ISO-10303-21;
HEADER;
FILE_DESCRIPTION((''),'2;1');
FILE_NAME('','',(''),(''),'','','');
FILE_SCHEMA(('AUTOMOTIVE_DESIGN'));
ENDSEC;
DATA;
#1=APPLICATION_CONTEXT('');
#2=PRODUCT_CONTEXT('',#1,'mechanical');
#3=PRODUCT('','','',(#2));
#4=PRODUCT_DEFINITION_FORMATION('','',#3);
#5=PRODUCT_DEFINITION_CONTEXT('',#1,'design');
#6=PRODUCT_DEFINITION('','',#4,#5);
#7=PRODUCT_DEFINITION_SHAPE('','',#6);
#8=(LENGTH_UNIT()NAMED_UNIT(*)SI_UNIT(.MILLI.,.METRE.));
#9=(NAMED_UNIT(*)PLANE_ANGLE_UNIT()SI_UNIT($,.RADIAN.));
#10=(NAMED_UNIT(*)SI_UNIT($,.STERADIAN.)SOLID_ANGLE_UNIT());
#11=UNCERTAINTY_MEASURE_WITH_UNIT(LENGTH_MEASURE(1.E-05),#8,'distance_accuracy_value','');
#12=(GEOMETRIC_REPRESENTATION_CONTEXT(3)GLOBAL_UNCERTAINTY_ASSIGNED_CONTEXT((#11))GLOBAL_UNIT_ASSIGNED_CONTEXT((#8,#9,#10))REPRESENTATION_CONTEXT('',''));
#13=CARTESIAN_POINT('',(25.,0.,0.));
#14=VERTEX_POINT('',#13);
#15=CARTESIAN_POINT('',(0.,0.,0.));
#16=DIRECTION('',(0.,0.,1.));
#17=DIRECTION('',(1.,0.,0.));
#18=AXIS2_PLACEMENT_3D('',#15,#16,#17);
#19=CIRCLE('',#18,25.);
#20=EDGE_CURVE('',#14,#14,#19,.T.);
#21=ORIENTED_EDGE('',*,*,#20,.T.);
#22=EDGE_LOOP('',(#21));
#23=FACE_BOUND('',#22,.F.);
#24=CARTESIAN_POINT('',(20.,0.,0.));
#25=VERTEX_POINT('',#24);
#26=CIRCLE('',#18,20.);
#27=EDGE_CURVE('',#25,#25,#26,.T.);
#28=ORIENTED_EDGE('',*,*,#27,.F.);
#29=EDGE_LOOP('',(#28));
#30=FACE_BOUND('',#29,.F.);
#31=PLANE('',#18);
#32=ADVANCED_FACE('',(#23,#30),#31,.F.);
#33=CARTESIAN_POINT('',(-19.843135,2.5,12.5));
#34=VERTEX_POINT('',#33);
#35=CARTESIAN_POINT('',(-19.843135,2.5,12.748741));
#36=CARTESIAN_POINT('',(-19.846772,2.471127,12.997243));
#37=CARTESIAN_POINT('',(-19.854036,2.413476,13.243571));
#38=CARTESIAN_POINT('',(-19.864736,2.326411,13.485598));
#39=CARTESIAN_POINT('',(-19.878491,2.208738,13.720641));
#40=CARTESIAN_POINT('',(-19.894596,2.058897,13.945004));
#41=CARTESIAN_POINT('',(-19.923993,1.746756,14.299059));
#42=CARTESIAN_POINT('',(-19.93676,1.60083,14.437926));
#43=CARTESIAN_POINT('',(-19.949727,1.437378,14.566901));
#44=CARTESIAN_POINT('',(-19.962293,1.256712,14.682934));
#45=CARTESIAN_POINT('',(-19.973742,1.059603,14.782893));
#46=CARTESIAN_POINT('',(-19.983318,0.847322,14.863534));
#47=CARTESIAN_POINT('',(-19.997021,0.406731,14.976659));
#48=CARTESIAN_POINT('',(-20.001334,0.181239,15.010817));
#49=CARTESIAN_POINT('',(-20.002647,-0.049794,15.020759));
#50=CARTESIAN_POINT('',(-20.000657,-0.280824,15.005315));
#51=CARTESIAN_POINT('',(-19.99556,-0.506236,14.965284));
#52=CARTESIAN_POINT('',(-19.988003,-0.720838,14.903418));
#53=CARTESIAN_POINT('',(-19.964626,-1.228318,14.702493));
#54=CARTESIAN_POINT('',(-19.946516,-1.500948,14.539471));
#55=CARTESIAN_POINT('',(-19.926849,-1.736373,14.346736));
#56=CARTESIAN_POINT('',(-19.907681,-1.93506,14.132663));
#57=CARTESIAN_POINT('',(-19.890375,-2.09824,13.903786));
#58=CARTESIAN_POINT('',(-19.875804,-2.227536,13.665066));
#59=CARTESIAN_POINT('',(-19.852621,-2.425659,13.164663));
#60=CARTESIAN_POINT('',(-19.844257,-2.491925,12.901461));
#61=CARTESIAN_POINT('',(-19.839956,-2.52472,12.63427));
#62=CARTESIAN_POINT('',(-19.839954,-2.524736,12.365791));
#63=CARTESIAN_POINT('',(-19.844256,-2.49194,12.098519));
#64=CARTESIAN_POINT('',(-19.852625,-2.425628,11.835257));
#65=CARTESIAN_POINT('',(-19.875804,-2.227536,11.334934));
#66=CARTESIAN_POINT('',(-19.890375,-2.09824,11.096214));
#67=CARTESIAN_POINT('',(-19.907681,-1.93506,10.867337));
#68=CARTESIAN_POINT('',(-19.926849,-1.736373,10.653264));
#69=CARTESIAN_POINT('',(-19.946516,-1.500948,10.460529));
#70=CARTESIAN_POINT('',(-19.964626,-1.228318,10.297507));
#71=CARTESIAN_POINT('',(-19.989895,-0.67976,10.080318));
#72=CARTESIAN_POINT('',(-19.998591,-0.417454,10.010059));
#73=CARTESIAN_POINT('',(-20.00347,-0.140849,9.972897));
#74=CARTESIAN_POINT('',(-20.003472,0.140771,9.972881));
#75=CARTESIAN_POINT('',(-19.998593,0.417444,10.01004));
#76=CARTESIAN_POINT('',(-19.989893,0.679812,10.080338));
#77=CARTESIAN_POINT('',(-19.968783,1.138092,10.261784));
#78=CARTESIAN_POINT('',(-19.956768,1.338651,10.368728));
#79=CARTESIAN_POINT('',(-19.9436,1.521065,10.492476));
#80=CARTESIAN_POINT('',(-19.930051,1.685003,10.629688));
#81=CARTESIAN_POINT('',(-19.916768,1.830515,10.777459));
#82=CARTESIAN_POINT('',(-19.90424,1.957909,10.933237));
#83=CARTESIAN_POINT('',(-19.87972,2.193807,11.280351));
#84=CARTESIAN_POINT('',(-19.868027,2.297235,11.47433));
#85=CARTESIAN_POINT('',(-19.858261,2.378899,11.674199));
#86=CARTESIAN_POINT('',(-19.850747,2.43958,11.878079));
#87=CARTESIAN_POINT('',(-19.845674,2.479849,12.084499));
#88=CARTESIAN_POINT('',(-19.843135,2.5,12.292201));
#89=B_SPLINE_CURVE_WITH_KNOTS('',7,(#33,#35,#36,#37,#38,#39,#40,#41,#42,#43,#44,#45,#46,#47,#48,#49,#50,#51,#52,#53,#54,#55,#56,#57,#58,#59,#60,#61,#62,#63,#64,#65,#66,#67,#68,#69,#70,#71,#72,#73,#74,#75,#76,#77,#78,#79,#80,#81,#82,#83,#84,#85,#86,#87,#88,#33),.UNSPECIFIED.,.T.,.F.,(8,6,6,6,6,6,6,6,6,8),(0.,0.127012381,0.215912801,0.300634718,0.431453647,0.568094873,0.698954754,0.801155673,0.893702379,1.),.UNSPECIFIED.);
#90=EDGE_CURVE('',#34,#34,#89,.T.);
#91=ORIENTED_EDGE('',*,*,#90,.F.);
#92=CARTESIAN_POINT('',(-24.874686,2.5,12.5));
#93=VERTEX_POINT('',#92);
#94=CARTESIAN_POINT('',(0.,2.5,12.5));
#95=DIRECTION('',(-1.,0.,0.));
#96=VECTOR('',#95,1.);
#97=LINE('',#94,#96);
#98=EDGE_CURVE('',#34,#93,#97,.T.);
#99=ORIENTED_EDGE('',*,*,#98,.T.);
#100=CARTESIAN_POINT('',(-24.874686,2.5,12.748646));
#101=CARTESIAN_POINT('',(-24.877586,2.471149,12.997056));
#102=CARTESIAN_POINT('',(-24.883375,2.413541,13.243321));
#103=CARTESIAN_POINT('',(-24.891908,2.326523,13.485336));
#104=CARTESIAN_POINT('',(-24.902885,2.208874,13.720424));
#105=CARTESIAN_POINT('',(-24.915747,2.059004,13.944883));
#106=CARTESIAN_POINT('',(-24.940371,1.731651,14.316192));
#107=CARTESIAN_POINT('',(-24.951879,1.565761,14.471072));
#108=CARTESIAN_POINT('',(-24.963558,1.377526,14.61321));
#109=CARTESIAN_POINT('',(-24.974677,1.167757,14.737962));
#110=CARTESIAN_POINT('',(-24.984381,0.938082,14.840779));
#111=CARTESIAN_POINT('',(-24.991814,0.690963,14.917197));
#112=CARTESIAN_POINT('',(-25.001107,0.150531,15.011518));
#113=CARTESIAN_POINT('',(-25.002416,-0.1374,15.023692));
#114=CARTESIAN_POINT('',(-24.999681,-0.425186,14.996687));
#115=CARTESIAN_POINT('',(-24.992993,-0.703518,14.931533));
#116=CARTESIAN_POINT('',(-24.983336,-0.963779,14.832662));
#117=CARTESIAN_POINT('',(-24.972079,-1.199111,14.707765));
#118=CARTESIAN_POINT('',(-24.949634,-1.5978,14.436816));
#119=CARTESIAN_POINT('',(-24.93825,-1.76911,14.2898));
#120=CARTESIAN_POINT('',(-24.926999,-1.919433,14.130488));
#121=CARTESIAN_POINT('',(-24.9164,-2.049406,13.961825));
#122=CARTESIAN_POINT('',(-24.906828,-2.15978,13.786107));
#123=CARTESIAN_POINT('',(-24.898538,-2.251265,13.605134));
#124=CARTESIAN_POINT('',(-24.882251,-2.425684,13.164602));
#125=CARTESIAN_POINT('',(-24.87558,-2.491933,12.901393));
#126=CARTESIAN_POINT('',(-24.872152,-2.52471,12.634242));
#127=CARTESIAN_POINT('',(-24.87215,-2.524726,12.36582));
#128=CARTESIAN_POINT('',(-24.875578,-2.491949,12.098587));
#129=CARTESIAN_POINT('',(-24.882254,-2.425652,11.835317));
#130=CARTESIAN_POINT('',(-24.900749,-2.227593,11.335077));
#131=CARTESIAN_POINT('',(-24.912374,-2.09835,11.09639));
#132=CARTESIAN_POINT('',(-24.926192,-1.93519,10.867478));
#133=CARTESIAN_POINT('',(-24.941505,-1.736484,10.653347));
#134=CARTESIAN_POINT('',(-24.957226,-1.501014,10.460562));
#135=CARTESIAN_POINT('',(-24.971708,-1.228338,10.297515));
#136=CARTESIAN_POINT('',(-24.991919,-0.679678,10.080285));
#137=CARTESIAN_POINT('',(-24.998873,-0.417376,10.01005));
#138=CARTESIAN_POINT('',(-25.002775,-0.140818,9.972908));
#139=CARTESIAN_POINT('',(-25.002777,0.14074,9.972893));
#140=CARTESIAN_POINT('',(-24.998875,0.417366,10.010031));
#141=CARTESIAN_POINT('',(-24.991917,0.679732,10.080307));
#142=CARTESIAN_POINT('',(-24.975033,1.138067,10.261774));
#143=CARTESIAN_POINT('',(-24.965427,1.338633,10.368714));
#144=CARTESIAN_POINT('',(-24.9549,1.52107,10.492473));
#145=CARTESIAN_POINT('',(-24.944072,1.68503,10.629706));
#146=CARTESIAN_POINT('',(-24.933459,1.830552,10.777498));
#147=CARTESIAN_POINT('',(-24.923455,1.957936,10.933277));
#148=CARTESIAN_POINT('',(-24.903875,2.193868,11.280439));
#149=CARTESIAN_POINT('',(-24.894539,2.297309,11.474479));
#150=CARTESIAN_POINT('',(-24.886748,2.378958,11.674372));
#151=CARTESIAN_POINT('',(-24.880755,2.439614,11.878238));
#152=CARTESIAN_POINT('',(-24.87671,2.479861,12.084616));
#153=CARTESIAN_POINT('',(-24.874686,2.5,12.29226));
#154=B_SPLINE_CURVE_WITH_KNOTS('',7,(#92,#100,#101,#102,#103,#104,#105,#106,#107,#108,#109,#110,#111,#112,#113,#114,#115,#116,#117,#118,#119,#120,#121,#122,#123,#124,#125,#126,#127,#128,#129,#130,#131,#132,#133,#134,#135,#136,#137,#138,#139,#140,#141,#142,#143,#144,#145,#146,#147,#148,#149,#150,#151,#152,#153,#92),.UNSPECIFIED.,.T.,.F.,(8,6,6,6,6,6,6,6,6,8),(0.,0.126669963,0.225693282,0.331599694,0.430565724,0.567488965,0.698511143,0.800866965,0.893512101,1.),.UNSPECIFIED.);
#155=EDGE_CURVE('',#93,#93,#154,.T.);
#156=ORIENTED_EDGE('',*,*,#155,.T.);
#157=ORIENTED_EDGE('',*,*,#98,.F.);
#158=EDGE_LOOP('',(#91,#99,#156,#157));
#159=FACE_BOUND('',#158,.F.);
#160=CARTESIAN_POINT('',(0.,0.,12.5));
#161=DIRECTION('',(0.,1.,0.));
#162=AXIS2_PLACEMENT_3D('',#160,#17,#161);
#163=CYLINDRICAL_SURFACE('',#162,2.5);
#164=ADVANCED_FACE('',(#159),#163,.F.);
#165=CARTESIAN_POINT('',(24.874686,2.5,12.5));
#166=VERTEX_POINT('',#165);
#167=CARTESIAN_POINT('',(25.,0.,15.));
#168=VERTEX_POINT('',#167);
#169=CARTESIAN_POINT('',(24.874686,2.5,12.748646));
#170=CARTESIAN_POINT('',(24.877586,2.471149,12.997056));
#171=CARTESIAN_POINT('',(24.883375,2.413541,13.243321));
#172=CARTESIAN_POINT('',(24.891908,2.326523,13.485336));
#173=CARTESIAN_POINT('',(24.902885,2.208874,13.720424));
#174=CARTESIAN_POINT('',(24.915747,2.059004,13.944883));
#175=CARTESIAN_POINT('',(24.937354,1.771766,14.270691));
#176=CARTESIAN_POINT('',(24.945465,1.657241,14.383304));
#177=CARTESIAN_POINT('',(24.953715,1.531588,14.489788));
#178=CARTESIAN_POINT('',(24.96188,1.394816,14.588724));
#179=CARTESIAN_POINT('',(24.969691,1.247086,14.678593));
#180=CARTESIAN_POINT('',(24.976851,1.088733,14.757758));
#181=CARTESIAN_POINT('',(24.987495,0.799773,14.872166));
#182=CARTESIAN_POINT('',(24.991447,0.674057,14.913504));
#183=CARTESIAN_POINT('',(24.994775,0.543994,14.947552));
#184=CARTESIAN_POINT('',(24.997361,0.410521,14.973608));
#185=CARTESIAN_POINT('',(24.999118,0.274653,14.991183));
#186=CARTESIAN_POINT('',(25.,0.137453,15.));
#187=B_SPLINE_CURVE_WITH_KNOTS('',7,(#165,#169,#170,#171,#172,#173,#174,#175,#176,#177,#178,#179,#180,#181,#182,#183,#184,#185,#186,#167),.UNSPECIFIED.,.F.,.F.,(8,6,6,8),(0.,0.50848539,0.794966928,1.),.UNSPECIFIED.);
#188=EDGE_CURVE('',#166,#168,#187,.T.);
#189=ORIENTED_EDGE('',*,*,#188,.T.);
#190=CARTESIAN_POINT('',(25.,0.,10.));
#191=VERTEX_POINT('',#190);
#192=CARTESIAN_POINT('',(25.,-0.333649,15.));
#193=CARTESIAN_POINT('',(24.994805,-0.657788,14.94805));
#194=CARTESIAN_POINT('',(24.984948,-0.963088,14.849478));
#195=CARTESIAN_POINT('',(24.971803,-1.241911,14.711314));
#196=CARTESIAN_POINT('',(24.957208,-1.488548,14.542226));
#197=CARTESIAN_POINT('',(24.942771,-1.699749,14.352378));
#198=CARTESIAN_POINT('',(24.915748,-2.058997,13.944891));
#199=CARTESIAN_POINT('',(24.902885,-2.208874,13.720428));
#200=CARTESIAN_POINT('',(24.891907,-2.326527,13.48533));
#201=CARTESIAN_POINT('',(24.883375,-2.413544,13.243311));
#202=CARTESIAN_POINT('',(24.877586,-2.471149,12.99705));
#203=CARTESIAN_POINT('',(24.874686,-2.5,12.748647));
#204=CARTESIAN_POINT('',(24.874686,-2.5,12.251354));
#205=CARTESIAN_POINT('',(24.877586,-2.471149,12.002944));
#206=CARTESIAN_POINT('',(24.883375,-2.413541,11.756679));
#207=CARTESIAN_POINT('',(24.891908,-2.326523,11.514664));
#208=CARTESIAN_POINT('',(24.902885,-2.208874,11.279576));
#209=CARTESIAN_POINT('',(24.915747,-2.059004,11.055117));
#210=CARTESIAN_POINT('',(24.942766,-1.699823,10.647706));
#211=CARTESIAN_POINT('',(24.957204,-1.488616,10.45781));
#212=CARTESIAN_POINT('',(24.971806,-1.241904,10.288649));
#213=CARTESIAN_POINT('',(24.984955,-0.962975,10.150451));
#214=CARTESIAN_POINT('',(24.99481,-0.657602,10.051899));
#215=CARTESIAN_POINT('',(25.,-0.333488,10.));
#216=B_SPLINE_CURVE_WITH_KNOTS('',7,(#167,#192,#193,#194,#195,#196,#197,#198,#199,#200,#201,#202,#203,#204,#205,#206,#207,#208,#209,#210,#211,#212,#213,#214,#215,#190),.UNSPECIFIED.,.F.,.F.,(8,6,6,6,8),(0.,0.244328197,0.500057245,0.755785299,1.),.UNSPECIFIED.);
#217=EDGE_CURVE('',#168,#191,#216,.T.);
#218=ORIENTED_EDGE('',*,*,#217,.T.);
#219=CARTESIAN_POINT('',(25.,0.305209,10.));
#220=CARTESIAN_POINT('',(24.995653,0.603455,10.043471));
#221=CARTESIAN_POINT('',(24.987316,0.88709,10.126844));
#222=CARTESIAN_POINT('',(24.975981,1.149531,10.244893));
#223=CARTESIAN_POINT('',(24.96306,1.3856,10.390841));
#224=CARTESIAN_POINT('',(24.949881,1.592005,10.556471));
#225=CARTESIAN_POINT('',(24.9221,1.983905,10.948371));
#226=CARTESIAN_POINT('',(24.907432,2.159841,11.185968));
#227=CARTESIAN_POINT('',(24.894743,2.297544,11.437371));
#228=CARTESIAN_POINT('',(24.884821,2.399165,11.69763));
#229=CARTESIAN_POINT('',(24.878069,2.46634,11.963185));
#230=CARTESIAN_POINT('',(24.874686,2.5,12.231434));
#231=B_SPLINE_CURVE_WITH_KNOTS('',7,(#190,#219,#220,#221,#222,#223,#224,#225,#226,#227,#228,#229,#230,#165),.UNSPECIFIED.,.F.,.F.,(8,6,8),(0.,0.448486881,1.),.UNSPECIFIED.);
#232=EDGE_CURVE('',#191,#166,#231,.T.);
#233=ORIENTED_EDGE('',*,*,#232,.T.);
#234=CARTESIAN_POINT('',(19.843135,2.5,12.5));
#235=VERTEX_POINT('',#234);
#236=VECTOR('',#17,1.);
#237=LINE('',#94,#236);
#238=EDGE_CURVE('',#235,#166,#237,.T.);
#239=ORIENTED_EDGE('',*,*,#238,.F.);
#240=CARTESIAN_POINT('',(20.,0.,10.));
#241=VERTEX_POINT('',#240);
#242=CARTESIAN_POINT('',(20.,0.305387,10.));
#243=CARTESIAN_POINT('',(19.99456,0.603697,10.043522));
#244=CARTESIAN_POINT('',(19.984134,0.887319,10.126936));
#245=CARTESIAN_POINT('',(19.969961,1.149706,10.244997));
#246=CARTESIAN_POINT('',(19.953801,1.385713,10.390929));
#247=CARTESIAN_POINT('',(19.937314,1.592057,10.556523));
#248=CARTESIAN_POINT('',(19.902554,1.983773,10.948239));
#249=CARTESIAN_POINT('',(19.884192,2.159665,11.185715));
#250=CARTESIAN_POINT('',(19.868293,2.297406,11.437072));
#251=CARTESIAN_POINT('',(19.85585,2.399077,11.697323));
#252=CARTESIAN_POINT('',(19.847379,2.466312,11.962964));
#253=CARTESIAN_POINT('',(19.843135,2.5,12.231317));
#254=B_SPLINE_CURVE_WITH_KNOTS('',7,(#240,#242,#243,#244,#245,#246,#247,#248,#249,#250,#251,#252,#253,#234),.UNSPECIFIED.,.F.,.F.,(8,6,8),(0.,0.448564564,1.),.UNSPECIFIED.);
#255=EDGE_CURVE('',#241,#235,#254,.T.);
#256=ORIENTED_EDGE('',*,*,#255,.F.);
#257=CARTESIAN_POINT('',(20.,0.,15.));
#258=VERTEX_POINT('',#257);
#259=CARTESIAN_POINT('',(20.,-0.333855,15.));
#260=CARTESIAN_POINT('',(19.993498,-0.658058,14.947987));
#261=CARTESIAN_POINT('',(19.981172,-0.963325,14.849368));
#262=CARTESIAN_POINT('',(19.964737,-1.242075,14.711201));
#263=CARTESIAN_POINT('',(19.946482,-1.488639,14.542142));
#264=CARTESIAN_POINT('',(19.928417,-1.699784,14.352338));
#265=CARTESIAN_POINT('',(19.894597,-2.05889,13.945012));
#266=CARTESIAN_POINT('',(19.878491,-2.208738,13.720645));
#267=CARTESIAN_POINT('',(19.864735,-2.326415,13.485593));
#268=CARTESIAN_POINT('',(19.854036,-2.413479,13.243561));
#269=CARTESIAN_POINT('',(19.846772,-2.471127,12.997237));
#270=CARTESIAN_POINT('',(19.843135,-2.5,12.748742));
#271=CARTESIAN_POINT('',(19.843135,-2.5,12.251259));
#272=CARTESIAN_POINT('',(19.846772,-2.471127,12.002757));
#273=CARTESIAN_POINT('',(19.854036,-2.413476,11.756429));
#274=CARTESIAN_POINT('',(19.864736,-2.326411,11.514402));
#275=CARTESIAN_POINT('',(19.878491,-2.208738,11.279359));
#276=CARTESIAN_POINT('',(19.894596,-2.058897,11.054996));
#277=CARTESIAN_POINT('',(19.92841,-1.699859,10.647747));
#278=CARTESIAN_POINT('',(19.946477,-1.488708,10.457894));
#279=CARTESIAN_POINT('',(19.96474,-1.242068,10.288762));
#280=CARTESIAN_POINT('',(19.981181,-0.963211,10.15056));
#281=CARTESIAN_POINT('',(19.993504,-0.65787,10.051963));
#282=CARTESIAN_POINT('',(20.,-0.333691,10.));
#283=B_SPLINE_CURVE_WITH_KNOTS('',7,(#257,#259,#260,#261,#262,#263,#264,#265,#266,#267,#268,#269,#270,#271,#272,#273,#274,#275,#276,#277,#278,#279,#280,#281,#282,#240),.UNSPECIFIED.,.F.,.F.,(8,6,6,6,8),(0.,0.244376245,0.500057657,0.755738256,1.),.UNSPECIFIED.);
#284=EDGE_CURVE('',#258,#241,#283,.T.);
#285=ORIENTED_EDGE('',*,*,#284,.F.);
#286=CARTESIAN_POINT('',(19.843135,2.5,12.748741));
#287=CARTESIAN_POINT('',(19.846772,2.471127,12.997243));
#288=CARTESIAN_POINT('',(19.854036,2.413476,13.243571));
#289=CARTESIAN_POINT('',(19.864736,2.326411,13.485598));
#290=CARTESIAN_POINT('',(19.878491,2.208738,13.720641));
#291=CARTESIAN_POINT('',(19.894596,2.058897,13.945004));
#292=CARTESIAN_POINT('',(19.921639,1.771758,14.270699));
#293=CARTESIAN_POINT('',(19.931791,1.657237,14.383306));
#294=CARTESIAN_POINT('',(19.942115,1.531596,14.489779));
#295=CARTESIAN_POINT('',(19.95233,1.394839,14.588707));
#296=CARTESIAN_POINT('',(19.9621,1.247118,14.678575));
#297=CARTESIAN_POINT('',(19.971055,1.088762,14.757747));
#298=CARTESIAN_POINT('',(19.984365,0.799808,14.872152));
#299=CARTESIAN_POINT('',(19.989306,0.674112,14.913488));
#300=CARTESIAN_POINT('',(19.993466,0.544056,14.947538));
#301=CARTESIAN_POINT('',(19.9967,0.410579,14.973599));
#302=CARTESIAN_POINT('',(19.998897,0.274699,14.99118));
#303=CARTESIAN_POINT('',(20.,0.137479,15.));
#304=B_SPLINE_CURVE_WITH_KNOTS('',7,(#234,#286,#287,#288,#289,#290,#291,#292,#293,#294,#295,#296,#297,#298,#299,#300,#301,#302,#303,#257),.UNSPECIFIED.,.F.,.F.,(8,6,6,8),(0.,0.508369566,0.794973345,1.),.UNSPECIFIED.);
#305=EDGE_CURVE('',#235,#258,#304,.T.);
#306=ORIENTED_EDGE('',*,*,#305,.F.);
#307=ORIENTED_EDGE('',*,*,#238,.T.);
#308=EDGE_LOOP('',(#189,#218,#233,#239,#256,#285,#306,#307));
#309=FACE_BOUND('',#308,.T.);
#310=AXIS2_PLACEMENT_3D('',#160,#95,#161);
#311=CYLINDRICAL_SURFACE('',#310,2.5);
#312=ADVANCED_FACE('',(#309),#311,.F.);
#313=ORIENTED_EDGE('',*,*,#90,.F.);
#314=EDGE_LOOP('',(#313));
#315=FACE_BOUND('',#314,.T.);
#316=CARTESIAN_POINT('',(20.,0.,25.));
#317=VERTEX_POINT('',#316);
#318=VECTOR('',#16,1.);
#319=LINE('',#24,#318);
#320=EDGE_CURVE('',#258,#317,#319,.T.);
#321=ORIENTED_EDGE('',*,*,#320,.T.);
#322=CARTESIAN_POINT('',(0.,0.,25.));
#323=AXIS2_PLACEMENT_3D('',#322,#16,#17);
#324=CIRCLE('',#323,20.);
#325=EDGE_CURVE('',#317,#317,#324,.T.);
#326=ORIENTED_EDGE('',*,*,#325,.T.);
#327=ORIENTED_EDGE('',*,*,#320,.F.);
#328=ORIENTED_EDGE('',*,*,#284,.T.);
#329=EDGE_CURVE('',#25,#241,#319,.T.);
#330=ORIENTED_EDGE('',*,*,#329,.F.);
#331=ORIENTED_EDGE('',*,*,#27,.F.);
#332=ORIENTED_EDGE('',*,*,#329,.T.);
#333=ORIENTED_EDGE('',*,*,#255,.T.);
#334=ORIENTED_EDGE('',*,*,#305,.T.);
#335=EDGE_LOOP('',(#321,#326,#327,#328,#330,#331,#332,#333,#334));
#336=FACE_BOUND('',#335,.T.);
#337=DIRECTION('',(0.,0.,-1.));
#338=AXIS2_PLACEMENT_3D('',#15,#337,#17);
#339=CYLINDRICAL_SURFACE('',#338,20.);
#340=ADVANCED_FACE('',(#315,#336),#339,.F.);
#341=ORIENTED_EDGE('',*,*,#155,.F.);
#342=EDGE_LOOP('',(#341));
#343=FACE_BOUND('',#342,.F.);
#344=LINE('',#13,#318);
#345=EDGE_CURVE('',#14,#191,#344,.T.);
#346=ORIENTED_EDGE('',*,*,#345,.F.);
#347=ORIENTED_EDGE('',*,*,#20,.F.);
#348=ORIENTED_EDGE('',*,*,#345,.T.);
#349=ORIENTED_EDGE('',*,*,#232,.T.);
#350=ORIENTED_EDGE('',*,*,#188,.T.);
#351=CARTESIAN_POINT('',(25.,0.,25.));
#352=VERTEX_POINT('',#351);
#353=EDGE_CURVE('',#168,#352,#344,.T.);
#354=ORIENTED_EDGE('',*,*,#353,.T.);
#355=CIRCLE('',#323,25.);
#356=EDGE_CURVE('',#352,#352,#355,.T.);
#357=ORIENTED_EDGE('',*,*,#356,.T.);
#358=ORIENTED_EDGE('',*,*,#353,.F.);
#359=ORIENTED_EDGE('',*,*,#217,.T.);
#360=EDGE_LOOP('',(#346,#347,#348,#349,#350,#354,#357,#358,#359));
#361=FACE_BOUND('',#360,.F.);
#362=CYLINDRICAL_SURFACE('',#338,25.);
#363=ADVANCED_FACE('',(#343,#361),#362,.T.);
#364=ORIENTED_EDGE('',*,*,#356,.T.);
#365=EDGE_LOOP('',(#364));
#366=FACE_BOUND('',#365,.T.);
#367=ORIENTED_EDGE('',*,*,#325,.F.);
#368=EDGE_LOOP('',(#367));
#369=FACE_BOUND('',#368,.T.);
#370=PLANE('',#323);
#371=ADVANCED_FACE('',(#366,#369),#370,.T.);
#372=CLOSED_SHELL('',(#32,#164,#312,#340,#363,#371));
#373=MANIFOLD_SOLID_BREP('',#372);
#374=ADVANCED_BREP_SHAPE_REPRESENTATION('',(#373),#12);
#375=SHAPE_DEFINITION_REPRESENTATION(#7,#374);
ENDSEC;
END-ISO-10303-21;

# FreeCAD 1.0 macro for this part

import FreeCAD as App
import Part
import Sketcher

V = App.Vector

doc = App.newDocument("Part")
body = doc.addObject("PartDesign::Body", "Body")

# Sketch on XY plane
sketch1 = body.newObject("Sketcher::SketchObject", "Sketch")
sketch1.AttachmentSupport = (doc.getObject("XY_Plane"), [""])
sketch1.MapMode = "FlatFace"
sketch1.addGeometry([
    Part.Circle(V(0, 0, 0), V(0, 0, 1), 25),
    Part.Circle(V(0, 0, 0), V(0, 0, 1), 20),
], False)
sketch1.addConstraint([
    Sketcher.Constraint("Coincident", 0, 3, -1, 1),
    Sketcher.Constraint("Coincident", 1, 3, -1, 1),
    Sketcher.Constraint("Diameter", 0, 50.0),
    Sketcher.Constraint("Diameter", 1, 40.0),
])
pad1 = body.newObject("PartDesign::Pad", "Pad")
pad1.Profile = sketch1
pad1.Length = 25

# Sketch on YZ plane
sketch2 = body.newObject("Sketcher::SketchObject", "Sketch001")
sketch2.AttachmentSupport = (doc.getObject("YZ_Plane"), [""])
sketch2.MapMode = "FlatFace"
sketch2.addGeometry(Part.Circle(V(0, 12.5, 0), V(0, 0, 1), 2.5), False)
sketch2.addConstraint([
    Sketcher.Constraint("PointOnObject", 0, 3, -2),
    Sketcher.Constraint("Diameter", 0, 5.0),
    Sketcher.Constraint("DistanceY", -1, 1, 0, 3, 12.5),
])
pocket1 = body.newObject("PartDesign::Pocket", "Pocket")
pocket1.Profile = sketch2
pocket1.Type = "ThroughAll"
pocket1.Midplane = True

doc.recompute()
